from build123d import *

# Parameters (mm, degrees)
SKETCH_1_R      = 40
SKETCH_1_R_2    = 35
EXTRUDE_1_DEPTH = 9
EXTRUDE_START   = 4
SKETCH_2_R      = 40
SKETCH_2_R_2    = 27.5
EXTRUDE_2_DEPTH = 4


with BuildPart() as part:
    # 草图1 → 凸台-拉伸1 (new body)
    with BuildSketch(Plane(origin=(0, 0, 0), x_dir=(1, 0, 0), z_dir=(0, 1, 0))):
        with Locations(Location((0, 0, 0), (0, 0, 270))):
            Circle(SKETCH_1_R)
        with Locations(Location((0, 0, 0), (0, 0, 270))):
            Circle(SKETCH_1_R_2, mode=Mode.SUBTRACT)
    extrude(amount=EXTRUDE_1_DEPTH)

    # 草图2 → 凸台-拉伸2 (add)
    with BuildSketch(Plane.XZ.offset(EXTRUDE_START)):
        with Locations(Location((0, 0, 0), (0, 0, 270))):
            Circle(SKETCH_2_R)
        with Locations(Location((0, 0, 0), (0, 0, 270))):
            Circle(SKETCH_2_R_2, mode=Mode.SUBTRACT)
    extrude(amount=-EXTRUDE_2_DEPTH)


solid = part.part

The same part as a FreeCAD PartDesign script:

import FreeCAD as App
import Part
import Sketcher
from FreeCAD import Vector

doc = App.newDocument("Part")
body = doc.addObject("PartDesign::Body", "Body")

# Sketch on XZ plane
sketch1 = doc.addObject("Sketcher::SketchObject", "Sketch")
body.addObject(sketch1)
sketch1.AttachmentSupport = (doc.XZ_Plane, [""])
sketch1.MapMode = "FlatFace"
sketch1.addGeometry([
    Part.Circle(Vector(0, 0, 0), Vector(0, 0, 1), 40),
    Part.Circle(Vector(0, 0, 0), Vector(0, 0, 1), 35),
], False)
sketch1.addConstraint([
    Sketcher.Constraint("Coincident", 0, 3, -1, 1),
    Sketcher.Constraint("Coincident", 1, 3, -1, 1),
    Sketcher.Constraint("Diameter", 0, 80.0),
    Sketcher.Constraint("Diameter", 1, 70.0),
])
pad1 = doc.addObject("PartDesign::Pad", "Pad")
body.addObject(pad1)
pad1.Profile = sketch1
pad1.Length = 9
pad1.Reversed = True

# Sketch on XZ plane
sketch2 = doc.addObject("Sketcher::SketchObject", "Sketch001")
body.addObject(sketch2)
sketch2.AttachmentSupport = (doc.XZ_Plane, [""])
sketch2.MapMode = "FlatFace"
sketch2.AttachmentOffset = App.Placement(Vector(0, 0, 4), App.Rotation())
sketch2.addGeometry([
    Part.Circle(Vector(0, 0, 0), Vector(0, 0, 1), 40),
    Part.Circle(Vector(0, 0, 0), Vector(0, 0, 1), 28),
], False)
sketch2.addConstraint([
    Sketcher.Constraint("Coincident", 0, 3, -1, 1),
    Sketcher.Constraint("Coincident", 1, 3, -1, 1),
    Sketcher.Constraint("Diameter", 0, 80.0),
    Sketcher.Constraint("Diameter", 1, 55.0),
])
pad2 = doc.addObject("PartDesign::Pad", "Pad001")
body.addObject(pad2)
pad2.Profile = sketch2
pad2.Length = 4
pad2.Reversed = True

doc.recompute()
